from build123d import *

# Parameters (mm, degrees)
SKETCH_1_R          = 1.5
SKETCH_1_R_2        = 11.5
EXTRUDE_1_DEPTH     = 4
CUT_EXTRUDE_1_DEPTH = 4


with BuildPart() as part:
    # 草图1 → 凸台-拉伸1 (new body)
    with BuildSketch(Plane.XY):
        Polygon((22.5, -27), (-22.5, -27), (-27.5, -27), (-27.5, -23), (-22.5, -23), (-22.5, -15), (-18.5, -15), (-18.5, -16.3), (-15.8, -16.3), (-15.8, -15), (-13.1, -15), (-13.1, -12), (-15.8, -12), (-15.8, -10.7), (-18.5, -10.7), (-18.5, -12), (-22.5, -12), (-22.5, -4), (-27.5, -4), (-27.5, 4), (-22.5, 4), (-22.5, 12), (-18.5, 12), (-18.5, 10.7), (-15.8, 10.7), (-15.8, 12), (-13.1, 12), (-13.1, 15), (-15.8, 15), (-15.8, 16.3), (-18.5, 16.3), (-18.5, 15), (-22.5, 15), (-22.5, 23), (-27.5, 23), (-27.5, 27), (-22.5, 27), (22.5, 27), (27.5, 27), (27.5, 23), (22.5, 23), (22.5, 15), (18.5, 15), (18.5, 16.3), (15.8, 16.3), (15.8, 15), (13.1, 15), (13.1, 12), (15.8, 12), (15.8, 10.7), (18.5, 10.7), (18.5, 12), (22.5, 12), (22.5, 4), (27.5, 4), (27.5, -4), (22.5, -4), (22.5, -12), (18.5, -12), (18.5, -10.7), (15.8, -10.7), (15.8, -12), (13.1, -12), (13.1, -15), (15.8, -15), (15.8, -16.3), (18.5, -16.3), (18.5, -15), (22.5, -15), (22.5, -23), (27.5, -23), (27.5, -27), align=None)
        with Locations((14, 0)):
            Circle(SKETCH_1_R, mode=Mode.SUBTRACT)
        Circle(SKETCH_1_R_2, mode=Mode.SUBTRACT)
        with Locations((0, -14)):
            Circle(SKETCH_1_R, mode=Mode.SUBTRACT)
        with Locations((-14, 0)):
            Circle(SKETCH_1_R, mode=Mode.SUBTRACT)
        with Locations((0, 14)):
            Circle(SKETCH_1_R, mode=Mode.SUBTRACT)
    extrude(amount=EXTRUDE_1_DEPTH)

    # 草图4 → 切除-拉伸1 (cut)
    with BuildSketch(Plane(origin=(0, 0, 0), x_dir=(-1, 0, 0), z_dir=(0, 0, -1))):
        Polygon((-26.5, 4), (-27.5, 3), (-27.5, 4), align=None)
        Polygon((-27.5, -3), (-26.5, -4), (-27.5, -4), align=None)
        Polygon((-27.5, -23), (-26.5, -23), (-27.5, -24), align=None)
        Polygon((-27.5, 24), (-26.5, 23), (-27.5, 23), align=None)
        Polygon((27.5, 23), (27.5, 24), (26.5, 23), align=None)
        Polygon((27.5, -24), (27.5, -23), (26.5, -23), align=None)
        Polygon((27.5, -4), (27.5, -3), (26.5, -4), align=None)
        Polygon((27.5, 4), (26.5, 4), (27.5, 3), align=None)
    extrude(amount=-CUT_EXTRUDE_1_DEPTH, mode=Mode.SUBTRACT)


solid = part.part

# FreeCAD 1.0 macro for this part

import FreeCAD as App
import Part
import Sketcher
Q = App.Units.Quantity

doc = App.newDocument("Part")
body = doc.addObject("PartDesign::Body", "Body")

sketch1 = doc.addObject("Sketcher::SketchObject", "Sketch")
body.addObject(sketch1)
sketch1.AttachmentSupport = (doc.XY_Plane, [""])
sketch1.MapMode = "FlatFace"
sketch1.addGeometry([
    Part.LineSegment(App.Vector(-27.5, -27, 0), App.Vector(27.5, -27, 0)),
    Part.LineSegment(App.Vector(27.5, -27, 0), App.Vector(27.5, -23, 0)),
    Part.LineSegment(App.Vector(27.5, -23, 0), App.Vector(22.5, -23, 0)),
    Part.LineSegment(App.Vector(22.5, -23, 0), App.Vector(22.5, -15, 0)),
    Part.LineSegment(App.Vector(22.5, -15, 0), App.Vector(18.5, -15, 0)),
    Part.LineSegment(App.Vector(18.5, -15, 0), App.Vector(18.5, -16.3, 0)),
    Part.LineSegment(App.Vector(18.5, -16.3, 0), App.Vector(15.8, -16.3, 0)),
    Part.LineSegment(App.Vector(15.8, -16.3, 0), App.Vector(15.8, -15, 0)),
    Part.LineSegment(App.Vector(15.8, -15, 0), App.Vector(13.1, -15, 0)),
    Part.LineSegment(App.Vector(13.1, -15, 0), App.Vector(13.1, -12, 0)),
    Part.LineSegment(App.Vector(13.1, -12, 0), App.Vector(15.8, -12, 0)),
    Part.LineSegment(App.Vector(15.8, -12, 0), App.Vector(15.8, -10.7, 0)),
    Part.LineSegment(App.Vector(15.8, -10.7, 0), App.Vector(18.5, -10.7, 0)),
    Part.LineSegment(App.Vector(18.5, -10.7, 0), App.Vector(18.5, -12, 0)),
    Part.LineSegment(App.Vector(18.5, -12, 0), App.Vector(22.5, -12, 0)),
    Part.LineSegment(App.Vector(22.5, -12, 0), App.Vector(22.5, -4, 0)),
    Part.LineSegment(App.Vector(22.5, -4, 0), App.Vector(27.5, -4, 0)),
    Part.LineSegment(App.Vector(27.5, -4, 0), App.Vector(27.5, 4, 0)),
    Part.LineSegment(App.Vector(27.5, 4, 0), App.Vector(22.5, 4, 0)),
    Part.LineSegment(App.Vector(22.5, 4, 0), App.Vector(22.5, 12, 0)),
    Part.LineSegment(App.Vector(22.5, 12, 0), App.Vector(18.5, 12, 0)),
    Part.LineSegment(App.Vector(18.5, 12, 0), App.Vector(18.5, 10.7, 0)),
    Part.LineSegment(App.Vector(18.5, 10.7, 0), App.Vector(15.8, 10.7, 0)),
    Part.LineSegment(App.Vector(15.8, 10.7, 0), App.Vector(15.8, 12, 0)),
    Part.LineSegment(App.Vector(15.8, 12, 0), App.Vector(13.1, 12, 0)),
    Part.LineSegment(App.Vector(13.1, 12, 0), App.Vector(13.1, 15, 0)),
    Part.LineSegment(App.Vector(13.1, 15, 0), App.Vector(15.8, 15, 0)),
    Part.LineSegment(App.Vector(15.8, 15, 0), App.Vector(15.8, 16.3, 0)),
    Part.LineSegment(App.Vector(15.8, 16.3, 0), App.Vector(18.5, 16.3, 0)),
    Part.LineSegment(App.Vector(18.5, 16.3, 0), App.Vector(18.5, 15, 0)),
    Part.LineSegment(App.Vector(18.5, 15, 0), App.Vector(22.5, 15, 0)),
    Part.LineSegment(App.Vector(22.5, 15, 0), App.Vector(22.5, 23, 0)),
    Part.LineSegment(App.Vector(22.5, 23, 0), App.Vector(27.5, 23, 0)),
    Part.LineSegment(App.Vector(27.5, 23, 0), App.Vector(27.5, 27, 0)),
    Part.LineSegment(App.Vector(27.5, 27, 0), App.Vector(-27.5, 27, 0)),
    Part.LineSegment(App.Vector(-27.5, 27, 0), App.Vector(-27.5, 23, 0)),
    Part.LineSegment(App.Vector(-27.5, 23, 0), App.Vector(-22.5, 23, 0)),
    Part.LineSegment(App.Vector(-22.5, 23, 0), App.Vector(-22.5, 15, 0)),
    Part.LineSegment(App.Vector(-22.5, 15, 0), App.Vector(-18.5, 15, 0)),
    Part.LineSegment(App.Vector(-18.5, 15, 0), App.Vector(-18.5, 16.3, 0)),
    Part.LineSegment(App.Vector(-18.5, 16.3, 0), App.Vector(-15.8, 16.3, 0)),
    Part.LineSegment(App.Vector(-15.8, 16.3, 0), App.Vector(-15.8, 15, 0)),
    Part.LineSegment(App.Vector(-15.8, 15, 0), App.Vector(-13.1, 15, 0)),
    Part.LineSegment(App.Vector(-13.1, 15, 0), App.Vector(-13.1, 12, 0)),
    Part.LineSegment(App.Vector(-13.1, 12, 0), App.Vector(-15.8, 12, 0)),
    Part.LineSegment(App.Vector(-15.8, 12, 0), App.Vector(-15.8, 10.7, 0)),
    Part.LineSegment(App.Vector(-15.8, 10.7, 0), App.Vector(-18.5, 10.7, 0)),
    Part.LineSegment(App.Vector(-18.5, 10.7, 0), App.Vector(-18.5, 12, 0)),
    Part.LineSegment(App.Vector(-18.5, 12, 0), App.Vector(-22.5, 12, 0)),
    Part.LineSegment(App.Vector(-22.5, 12, 0), App.Vector(-22.5, 4, 0)),
    Part.LineSegment(App.Vector(-22.5, 4, 0), App.Vector(-27.5, 4, 0)),
    Part.LineSegment(App.Vector(-27.5, 4, 0), App.Vector(-27.5, -4, 0)),
    Part.LineSegment(App.Vector(-27.5, -4, 0), App.Vector(-22.5, -4, 0)),
    Part.LineSegment(App.Vector(-22.5, -4, 0), App.Vector(-22.5, -12, 0)),
    Part.LineSegment(App.Vector(-22.5, -12, 0), App.Vector(-18.5, -12, 0)),
    Part.LineSegment(App.Vector(-18.5, -12, 0), App.Vector(-18.5, -10.7, 0)),
    Part.LineSegment(App.Vector(-18.5, -10.7, 0), App.Vector(-15.8, -10.7, 0)),
    Part.LineSegment(App.Vector(-15.8, -10.7, 0), App.Vector(-15.8, -12, 0)),
    Part.LineSegment(App.Vector(-15.8, -12, 0), App.Vector(-13.1, -12, 0)),
    Part.LineSegment(App.Vector(-13.1, -12, 0), App.Vector(-13.1, -15, 0)),
    Part.LineSegment(App.Vector(-13.1, -15, 0), App.Vector(-15.8, -15, 0)),
    Part.LineSegment(App.Vector(-15.8, -15, 0), App.Vector(-15.8, -16.3, 0)),
    Part.LineSegment(App.Vector(-15.8, -16.3, 0), App.Vector(-18.5, -16.3, 0)),
    Part.LineSegment(App.Vector(-18.5, -16.3, 0), App.Vector(-18.5, -15, 0)),
    Part.LineSegment(App.Vector(-18.5, -15, 0), App.Vector(-22.5, -15, 0)),
    Part.LineSegment(App.Vector(-22.5, -15, 0), App.Vector(-22.5, -23, 0)),
    Part.LineSegment(App.Vector(-22.5, -23, 0), App.Vector(-27.5, -23, 0)),
    Part.LineSegment(App.Vector(-27.5, -23, 0), App.Vector(-27.5, -27, 0)),
    Part.Circle(App.Vector(0, -14, 0), App.Vector(0, 0, 1), 1.5),
    Part.Circle(App.Vector(14, 0, 0), App.Vector(0, 0, 1), 1.5),
    Part.Circle(App.Vector(0, 0, 0), App.Vector(0, 0, 1), 11.5),
    Part.Circle(App.Vector(-14, 0, 0), App.Vector(0, 0, 1), 1.5),
    Part.Circle(App.Vector(0, 14, 0), App.Vector(0, 0, 1), 1.5),
], False)
sketch1.addConstraint([
    Sketcher.Constraint("Coincident", 0, 2, 1, 1),
    Sketcher.Constraint("Coincident", 1, 2, 2, 1),
    Sketcher.Constraint("Coincident", 2, 2, 3, 1),
    Sketcher.Constraint("Coincident", 3, 2, 4, 1),
    Sketcher.Constraint("Coincident", 4, 2, 5, 1),
    Sketcher.Constraint("Coincident", 5, 2, 6, 1),
    Sketcher.Constraint("Coincident", 6, 2, 7, 1),
    Sketcher.Constraint("Coincident", 7, 2, 8, 1),
    Sketcher.Constraint("Coincident", 8, 2, 9, 1),
    Sketcher.Constraint("Coincident", 9, 2, 10, 1),
    Sketcher.Constraint("Coincident", 10, 2, 11, 1),
    Sketcher.Constraint("Coincident", 11, 2, 12, 1),
    Sketcher.Constraint("Coincident", 12, 2, 13, 1),
    Sketcher.Constraint("Coincident", 13, 2, 14, 1),
    Sketcher.Constraint("Coincident", 14, 2, 15, 1),
    Sketcher.Constraint("Coincident", 15, 2, 16, 1),
    Sketcher.Constraint("Coincident", 16, 2, 17, 1),
    Sketcher.Constraint("Coincident", 17, 2, 18, 1),
    Sketcher.Constraint("Coincident", 18, 2, 19, 1),
    Sketcher.Constraint("Coincident", 19, 2, 20, 1),
    Sketcher.Constraint("Coincident", 20, 2, 21, 1),
    Sketcher.Constraint("Coincident", 21, 2, 22, 1),
    Sketcher.Constraint("Coincident", 22, 2, 23, 1),
    Sketcher.Constraint("Coincident", 23, 2, 24, 1),
    Sketcher.Constraint("Coincident", 24, 2, 25, 1),
    Sketcher.Constraint("Coincident", 25, 2, 26, 1),
    Sketcher.Constraint("Coincident", 26, 2, 27, 1),
    Sketcher.Constraint("Coincident", 27, 2, 28, 1),
    Sketcher.Constraint("Coincident", 28, 2, 29, 1),
    Sketcher.Constraint("Coincident", 29, 2, 30, 1),
    Sketcher.Constraint("Coincident", 30, 2, 31, 1),
    Sketcher.Constraint("Coincident", 31, 2, 32, 1),
    Sketcher.Constraint("Coincident", 32, 2, 33, 1),
    Sketcher.Constraint("Coincident", 33, 2, 34, 1),
    Sketcher.Constraint("Coincident", 34, 2, 35, 1),
    Sketcher.Constraint("Coincident", 35, 2, 36, 1),
    Sketcher.Constraint("Coincident", 36, 2, 37, 1),
    Sketcher.Constraint("Coincident", 37, 2, 38, 1),
    Sketcher.Constraint("Coincident", 38, 2, 39, 1),
    Sketcher.Constraint("Coincident", 39, 2, 40, 1),
    Sketcher.Constraint("Coincident", 40, 2, 41, 1),
    Sketcher.Constraint("Coincident", 41, 2, 42, 1),
    Sketcher.Constraint("Coincident", 42, 2, 43, 1),
    Sketcher.Constraint("Coincident", 43, 2, 44, 1),
    Sketcher.Constraint("Coincident", 44, 2, 45, 1),
    Sketcher.Constraint("Coincident", 45, 2, 46, 1),
    Sketcher.Constraint("Coincident", 46, 2, 47, 1),
    Sketcher.Constraint("Coincident", 47, 2, 48, 1),
    Sketcher.Constraint("Coincident", 48, 2, 49, 1),
    Sketcher.Constraint("Coincident", 49, 2, 50, 1),
    Sketcher.Constraint("Coincident", 50, 2, 51, 1),
    Sketcher.Constraint("Coincident", 51, 2, 52, 1),
    Sketcher.Constraint("Coincident", 52, 2, 53, 1),
    Sketcher.Constraint("Coincident", 53, 2, 54, 1),
    Sketcher.Constraint("Coincident", 54, 2, 55, 1),
    Sketcher.Constraint("Coincident", 55, 2, 56, 1),
    Sketcher.Constraint("Coincident", 56, 2, 57, 1),
    Sketcher.Constraint("Coincident", 57, 2, 58, 1),
    Sketcher.Constraint("Coincident", 58, 2, 59, 1),
    Sketcher.Constraint("Coincident", 59, 2, 60, 1),
    Sketcher.Constraint("Coincident", 60, 2, 61, 1),
    Sketcher.Constraint("Coincident", 61, 2, 62, 1),
    Sketcher.Constraint("Coincident", 62, 2, 63, 1),
    Sketcher.Constraint("Coincident", 63, 2, 64, 1),
    Sketcher.Constraint("Coincident", 64, 2, 65, 1),
    Sketcher.Constraint("Coincident", 65, 2, 66, 1),
    Sketcher.Constraint("Coincident", 66, 2, 67, 1),
    Sketcher.Constraint("Coincident", 67, 2, 0, 1),
    Sketcher.Constraint("Horizontal", 0),
    Sketcher.Constraint("Vertical", 1),
    Sketcher.Constraint("Horizontal", 2),
    Sketcher.Constraint("Vertical", 3),
    Sketcher.Constraint("Horizontal", 4),
    Sketcher.Constraint("Vertical", 5),
    Sketcher.Constraint("Horizontal", 6),
    Sketcher.Constraint("Vertical", 7),
    Sketcher.Constraint("Horizontal", 8),
    Sketcher.Constraint("Vertical", 9),
    Sketcher.Constraint("Horizontal", 10),
    Sketcher.Constraint("Vertical", 11),
    Sketcher.Constraint("Horizontal", 12),
    Sketcher.Constraint("Vertical", 13),
    Sketcher.Constraint("Horizontal", 14),
    Sketcher.Constraint("Vertical", 15),
    Sketcher.Constraint("Horizontal", 16),
    Sketcher.Constraint("Vertical", 17),
    Sketcher.Constraint("Horizontal", 18),
    Sketcher.Constraint("Vertical", 19),
    Sketcher.Constraint("Horizontal", 20),
    Sketcher.Constraint("Vertical", 21),
    Sketcher.Constraint("Horizontal", 22),
    Sketcher.Constraint("Vertical", 23),
    Sketcher.Constraint("Horizontal", 24),
    Sketcher.Constraint("Vertical", 25),
    Sketcher.Constraint("Horizontal", 26),
    Sketcher.Constraint("Vertical", 27),
    Sketcher.Constraint("Horizontal", 28),
    Sketcher.Constraint("Vertical", 29),
    Sketcher.Constraint("Horizontal", 30),
    Sketcher.Constraint("Vertical", 31),
    Sketcher.Constraint("Horizontal", 32),
    Sketcher.Constraint("Vertical", 33),
    Sketcher.Constraint("Horizontal", 34),
    Sketcher.Constraint("Vertical", 35),
    Sketcher.Constraint("Horizontal", 36),
    Sketcher.Constraint("Vertical", 37),
    Sketcher.Constraint("Horizontal", 38),
    Sketcher.Constraint("Vertical", 39),
    Sketcher.Constraint("Horizontal", 40),
    Sketcher.Constraint("Vertical", 41),
    Sketcher.Constraint("Horizontal", 42),
    Sketcher.Constraint("Vertical", 43),
    Sketcher.Constraint("Horizontal", 44),
    Sketcher.Constraint("Vertical", 45),
    Sketcher.Constraint("Horizontal", 46),
    Sketcher.Constraint("Vertical", 47),
    Sketcher.Constraint("Horizontal", 48),
    Sketcher.Constraint("Vertical", 49),
    Sketcher.Constraint("Horizontal", 50),
    Sketcher.Constraint("Vertical", 51),
    Sketcher.Constraint("Horizontal", 52),
    Sketcher.Constraint("Vertical", 53),
    Sketcher.Constraint("Horizontal", 54),
    Sketcher.Constraint("Vertical", 55),
    Sketcher.Constraint("Horizontal", 56),
    Sketcher.Constraint("Vertical", 57),
    Sketcher.Constraint("Horizontal", 58),
    Sketcher.Constraint("Vertical", 59),
    Sketcher.Constraint("Horizontal", 60),
    Sketcher.Constraint("Vertical", 61),
    Sketcher.Constraint("Horizontal", 62),
    Sketcher.Constraint("Vertical", 63),
    Sketcher.Constraint("Horizontal", 64),
    Sketcher.Constraint("Vertical", 65),
    Sketcher.Constraint("Horizontal", 66),
    Sketcher.Constraint("Vertical", 67),
    Sketcher.Constraint("Coincident", 70, 3, -1, 1),
    Sketcher.Constraint("Equal", 68, 69),
    Sketcher.Constraint("Equal", 69, 71),
    Sketcher.Constraint("Equal", 71, 72),
    Sketcher.Constraint("Symmetric", 69, 3, 71, 3, -1, 1),
    Sketcher.Constraint("Symmetric", 68, 3, 72, 3, -1, 1),
    Sketcher.Constraint("Symmetric", 0, 2, 34, 2, -1, 1),
    Sketcher.Constraint("Symmetric", 2, 2, 36, 2, -1, 1),
    Sketcher.Constraint("Symmetric", 4, 2, 38, 2, -1, 1),
    Sketcher.Constraint("Symmetric", 6, 2, 40, 2, -1, 1),
    Sketcher.Constraint("Symmetric", 8, 2, 42, 2, -1, 1),
    Sketcher.Constraint("Symmetric", 10, 2, 44, 2, -1, 1),
    Sketcher.Constraint("Symmetric", 12, 2, 46, 2, -1, 1),
    Sketcher.Constraint("Symmetric", 14, 2, 48, 2, -1, 1),
    Sketcher.Constraint("Symmetric", 16, 2, 50, 2, -1, 1),
    Sketcher.Constraint("Symmetric", 18, 2, 52, 2, -1, 1),
    Sketcher.Constraint("Symmetric", 20, 2, 54, 2, -1, 1),
    Sketcher.Constraint("Symmetric", 22, 2, 56, 2, -1, 1),
    Sketcher.Constraint("Symmetric", 24, 2, 58, 2, -1, 1),
    Sketcher.Constraint("Symmetric", 26, 2, 60, 2, -1, 1),
    Sketcher.Constraint("Symmetric", 28, 2, 62, 2, -1, 1),
    Sketcher.Constraint("Symmetric", 30, 2, 64, 2, -1, 1),
    Sketcher.Constraint("Symmetric", 32, 2, 66, 2, -1, 1),
    Sketcher.Constraint("Symmetric", 32, 2, 35, 2, -2),
    Sketcher.Constraint("Symmetric", 30, 2, 37, 2, -2),
    Sketcher.Constraint("Symmetric", 28, 2, 39, 2, -2),
    Sketcher.Constraint("Symmetric", 26, 2, 41, 2, -2),
    Sketcher.Constraint("Symmetric", 24, 2, 43, 2, -2),
    Sketcher.Constraint("Symmetric", 22, 2, 45, 2, -2),
    Sketcher.Constraint("Symmetric", 20, 2, 47, 2, -2),
    Sketcher.Constraint("Symmetric", 18, 2, 49, 2, -2),
    Sketcher.Constraint("PointOnObject", 68, 3, -2),
    Sketcher.Constraint("PointOnObject", 69, 3, -1),
    Sketcher.Constraint("Horizontal", 4, 2, 7, 2),
    Sketcher.Constraint("Horizontal", 10, 2, 13, 2),
    Sketcher.Constraint("Vertical", 7, 2, 10, 2),
    Sketcher.Constraint("Vertical", 5, 2, 12, 2),
    Sketcher.Constraint("Vertical", 3, 2, 14, 2),
    Sketcher.Constraint("Vertical", 1, 2, 16, 2),
    Sketcher.Constraint("Equal", 6, 8),
    Sketcher.Constraint("Equal", 64, 1),
    Sketcher.Constraint("Equal", 7, 11),
    Sketcher.Constraint("Equal", 3, 15),
    Sketcher.Constraint("Equal", 15, 17),
    Sketcher.Constraint("Diameter", 68, Q("3 mm")),
    Sketcher.Constraint("Diameter", 70, Q("23 mm")),
    Sketcher.Constraint("DistanceX", 0, 1, 0, 2, Q("55 mm")),
    Sketcher.Constraint("DistanceX", 2, 2, 2, 1, Q("5 mm")),
    Sketcher.Constraint("DistanceX", 4, 2, 4, 1, Q("4 mm")),
    Sketcher.Constraint("DistanceY", 3, 1, 3, 2, Q("8 mm")),
    Sketcher.Constraint("DistanceY", 9, 1, 9, 2, Q("3 mm")),
    Sketcher.Constraint("DistanceX", 6, 2, 6, 1, Q("2.7 mm")),
    Sketcher.Constraint("DistanceY", 5, 2, 5, 1, Q("1.3 mm")),
    Sketcher.Constraint("DistanceY", 68, 3, -1, 1, Q("14 mm")),
    Sketcher.Constraint("DistanceX", -1, 1, 69, 3, Q("14 mm")),
])
pad1 = doc.addObject("PartDesign::Pad", "Pad")
body.addObject(pad1)
pad1.Profile = sketch1
pad1.Length = 4

sketch2 = doc.addObject("Sketcher::SketchObject", "Sketch001")
body.addObject(sketch2)
sketch2.AttachmentSupport = (doc.XY_Plane, [""])
sketch2.MapMode = "FlatFace"
sketch2.addGeometry([
    Part.LineSegment(App.Vector(27.5, 3, 0), App.Vector(26.5, 4, 0)),
    Part.LineSegment(App.Vector(26.5, 4, 0), App.Vector(27.5, 4, 0)),
    Part.LineSegment(App.Vector(27.5, 4, 0), App.Vector(27.5, 3, 0)),
    Part.LineSegment(App.Vector(26.5, -4, 0), App.Vector(27.5, -3, 0)),
    Part.LineSegment(App.Vector(27.5, -3, 0), App.Vector(27.5, -4, 0)),
    Part.LineSegment(App.Vector(27.5, -4, 0), App.Vector(26.5, -4, 0)),
    Part.LineSegment(App.Vector(26.5, -23, 0), App.Vector(27.5, -23, 0)),
    Part.LineSegment(App.Vector(27.5, -23, 0), App.Vector(27.5, -24, 0)),
    Part.LineSegment(App.Vector(27.5, -24, 0), App.Vector(26.5, -23, 0)),
    Part.LineSegment(App.Vector(26.5, 23, 0), App.Vector(27.5, 24, 0)),
    Part.LineSegment(App.Vector(27.5, 24, 0), App.Vector(27.5, 23, 0)),
    Part.LineSegment(App.Vector(27.5, 23, 0), App.Vector(26.5, 23, 0)),
    Part.LineSegment(App.Vector(-27.5, 23, 0), App.Vector(-27.5, 24, 0)),
    Part.LineSegment(App.Vector(-27.5, 24, 0), App.Vector(-26.5, 23, 0)),
    Part.LineSegment(App.Vector(-26.5, 23, 0), App.Vector(-27.5, 23, 0)),
    Part.LineSegment(App.Vector(-27.5, -24, 0), App.Vector(-27.5, -23, 0)),
    Part.LineSegment(App.Vector(-27.5, -23, 0), App.Vector(-26.5, -23, 0)),
    Part.LineSegment(App.Vector(-26.5, -23, 0), App.Vector(-27.5, -24, 0)),
    Part.LineSegment(App.Vector(-27.5, -4, 0), App.Vector(-27.5, -3, 0)),
    Part.LineSegment(App.Vector(-27.5, -3, 0), App.Vector(-26.5, -4, 0)),
    Part.LineSegment(App.Vector(-26.5, -4, 0), App.Vector(-27.5, -4, 0)),
    Part.LineSegment(App.Vector(-27.5, 4, 0), App.Vector(-26.5, 4, 0)),
    Part.LineSegment(App.Vector(-26.5, 4, 0), App.Vector(-27.5, 3, 0)),
    Part.LineSegment(App.Vector(-27.5, 3, 0), App.Vector(-27.5, 4, 0)),
], False)
sketch2.addConstraint([
    Sketcher.Constraint("Coincident", 0, 2, 1, 1),
    Sketcher.Constraint("Coincident", 1, 2, 2, 1),
    Sketcher.Constraint("Coincident", 2, 2, 0, 1),
    Sketcher.Constraint("Coincident", 3, 2, 4, 1),
    Sketcher.Constraint("Coincident", 4, 2, 5, 1),
    Sketcher.Constraint("Coincident", 5, 2, 3, 1),
    Sketcher.Constraint("Coincident", 6, 2, 7, 1),
    Sketcher.Constraint("Coincident", 7, 2, 8, 1),
    Sketcher.Constraint("Coincident", 8, 2, 6, 1),
    Sketcher.Constraint("Coincident", 9, 2, 10, 1),
    Sketcher.Constraint("Coincident", 10, 2, 11, 1),
    Sketcher.Constraint("Coincident", 11, 2, 9, 1),
    Sketcher.Constraint("Coincident", 12, 2, 13, 1),
    Sketcher.Constraint("Coincident", 13, 2, 14, 1),
    Sketcher.Constraint("Coincident", 14, 2, 12, 1),
    Sketcher.Constraint("Coincident", 15, 2, 16, 1),
    Sketcher.Constraint("Coincident", 16, 2, 17, 1),
    Sketcher.Constraint("Coincident", 17, 2, 15, 1),
    Sketcher.Constraint("Coincident", 18, 2, 19, 1),
    Sketcher.Constraint("Coincident", 19, 2, 20, 1),
    Sketcher.Constraint("Coincident", 20, 2, 18, 1),
    Sketcher.Constraint("Coincident", 21, 2, 22, 1),
    Sketcher.Constraint("Coincident", 22, 2, 23, 1),
    Sketcher.Constraint("Coincident", 23, 2, 21, 1),
    Sketcher.Constraint("Horizontal", 1),
    Sketcher.Constraint("Vertical", 2),
    Sketcher.Constraint("Vertical", 4),
    Sketcher.Constraint("Horizontal", 5),
    Sketcher.Constraint("Horizontal", 6),
    Sketcher.Constraint("Vertical", 7),
    Sketcher.Constraint("Vertical", 10),
    Sketcher.Constraint("Horizontal", 11),
    Sketcher.Constraint("Vertical", 12),
    Sketcher.Constraint("Horizontal", 14),
    Sketcher.Constraint("Vertical", 15),
    Sketcher.Constraint("Horizontal", 16),
    Sketcher.Constraint("Vertical", 18),
    Sketcher.Constraint("Horizontal", 20),
    Sketcher.Constraint("Horizontal", 21),
    Sketcher.Constraint("Vertical", 23),
    Sketcher.Constraint("Symmetric", 7, 2, 12, 2, -1, 1),
    Sketcher.Constraint("Symmetric", 8, 2, 13, 2, -1, 1),
    Sketcher.Constraint("Symmetric", 10, 2, 15, 2, -1, 1),
    Sketcher.Constraint("Symmetric", 2, 2, 18, 2, -1, 1),
    Sketcher.Constraint("Symmetric", 0, 2, 19, 2, -1, 1),
    Sketcher.Constraint("Symmetric", 5, 2, 21, 2, -1, 1),
    Sketcher.Constraint("Symmetric", 3, 2, 22, 2, -1, 1),
    Sketcher.Constraint("Symmetric", 9, 2, 12, 2, -2),
    Sketcher.Constraint("Symmetric", 11, 2, 13, 2, -2),
    Sketcher.Constraint("Symmetric", 3, 2, 18, 2, -2),
    Sketcher.Constraint("Symmetric", 5, 2, 19, 2, -2),
    Sketcher.Constraint("Perpendicular", 0, 3),
    Sketcher.Constraint("Perpendicular", 3, 8),
    Sketcher.Constraint("Perpendicular", 13, 17),
    Sketcher.Constraint("Horizontal", 7, 2, 17, 2),
    Sketcher.Constraint("Vertical", 4, 2, 6, 2),
    Sketcher.Constraint("Vertical", 5, 2, 8, 2),
    Sketcher.Constraint("DistanceX", 1, 1, 1, 2, Q("1 mm")),
    Sketcher.Constraint("DistanceY", -1, 1, 0, 2, Q("4 mm")),
    Sketcher.Constraint("DistanceY", 6, 2, -1, 1, Q("23 mm")),
    Sketcher.Constraint("DistanceX", 12, 2, 11, 2, Q("54 mm")),
])
pocket1 = doc.addObject("PartDesign::Pocket", "Pocket")
body.addObject(pocket1)
pocket1.Profile = sketch2
pocket1.Length = 4
pocket1.Reversed = True

doc.recompute()
